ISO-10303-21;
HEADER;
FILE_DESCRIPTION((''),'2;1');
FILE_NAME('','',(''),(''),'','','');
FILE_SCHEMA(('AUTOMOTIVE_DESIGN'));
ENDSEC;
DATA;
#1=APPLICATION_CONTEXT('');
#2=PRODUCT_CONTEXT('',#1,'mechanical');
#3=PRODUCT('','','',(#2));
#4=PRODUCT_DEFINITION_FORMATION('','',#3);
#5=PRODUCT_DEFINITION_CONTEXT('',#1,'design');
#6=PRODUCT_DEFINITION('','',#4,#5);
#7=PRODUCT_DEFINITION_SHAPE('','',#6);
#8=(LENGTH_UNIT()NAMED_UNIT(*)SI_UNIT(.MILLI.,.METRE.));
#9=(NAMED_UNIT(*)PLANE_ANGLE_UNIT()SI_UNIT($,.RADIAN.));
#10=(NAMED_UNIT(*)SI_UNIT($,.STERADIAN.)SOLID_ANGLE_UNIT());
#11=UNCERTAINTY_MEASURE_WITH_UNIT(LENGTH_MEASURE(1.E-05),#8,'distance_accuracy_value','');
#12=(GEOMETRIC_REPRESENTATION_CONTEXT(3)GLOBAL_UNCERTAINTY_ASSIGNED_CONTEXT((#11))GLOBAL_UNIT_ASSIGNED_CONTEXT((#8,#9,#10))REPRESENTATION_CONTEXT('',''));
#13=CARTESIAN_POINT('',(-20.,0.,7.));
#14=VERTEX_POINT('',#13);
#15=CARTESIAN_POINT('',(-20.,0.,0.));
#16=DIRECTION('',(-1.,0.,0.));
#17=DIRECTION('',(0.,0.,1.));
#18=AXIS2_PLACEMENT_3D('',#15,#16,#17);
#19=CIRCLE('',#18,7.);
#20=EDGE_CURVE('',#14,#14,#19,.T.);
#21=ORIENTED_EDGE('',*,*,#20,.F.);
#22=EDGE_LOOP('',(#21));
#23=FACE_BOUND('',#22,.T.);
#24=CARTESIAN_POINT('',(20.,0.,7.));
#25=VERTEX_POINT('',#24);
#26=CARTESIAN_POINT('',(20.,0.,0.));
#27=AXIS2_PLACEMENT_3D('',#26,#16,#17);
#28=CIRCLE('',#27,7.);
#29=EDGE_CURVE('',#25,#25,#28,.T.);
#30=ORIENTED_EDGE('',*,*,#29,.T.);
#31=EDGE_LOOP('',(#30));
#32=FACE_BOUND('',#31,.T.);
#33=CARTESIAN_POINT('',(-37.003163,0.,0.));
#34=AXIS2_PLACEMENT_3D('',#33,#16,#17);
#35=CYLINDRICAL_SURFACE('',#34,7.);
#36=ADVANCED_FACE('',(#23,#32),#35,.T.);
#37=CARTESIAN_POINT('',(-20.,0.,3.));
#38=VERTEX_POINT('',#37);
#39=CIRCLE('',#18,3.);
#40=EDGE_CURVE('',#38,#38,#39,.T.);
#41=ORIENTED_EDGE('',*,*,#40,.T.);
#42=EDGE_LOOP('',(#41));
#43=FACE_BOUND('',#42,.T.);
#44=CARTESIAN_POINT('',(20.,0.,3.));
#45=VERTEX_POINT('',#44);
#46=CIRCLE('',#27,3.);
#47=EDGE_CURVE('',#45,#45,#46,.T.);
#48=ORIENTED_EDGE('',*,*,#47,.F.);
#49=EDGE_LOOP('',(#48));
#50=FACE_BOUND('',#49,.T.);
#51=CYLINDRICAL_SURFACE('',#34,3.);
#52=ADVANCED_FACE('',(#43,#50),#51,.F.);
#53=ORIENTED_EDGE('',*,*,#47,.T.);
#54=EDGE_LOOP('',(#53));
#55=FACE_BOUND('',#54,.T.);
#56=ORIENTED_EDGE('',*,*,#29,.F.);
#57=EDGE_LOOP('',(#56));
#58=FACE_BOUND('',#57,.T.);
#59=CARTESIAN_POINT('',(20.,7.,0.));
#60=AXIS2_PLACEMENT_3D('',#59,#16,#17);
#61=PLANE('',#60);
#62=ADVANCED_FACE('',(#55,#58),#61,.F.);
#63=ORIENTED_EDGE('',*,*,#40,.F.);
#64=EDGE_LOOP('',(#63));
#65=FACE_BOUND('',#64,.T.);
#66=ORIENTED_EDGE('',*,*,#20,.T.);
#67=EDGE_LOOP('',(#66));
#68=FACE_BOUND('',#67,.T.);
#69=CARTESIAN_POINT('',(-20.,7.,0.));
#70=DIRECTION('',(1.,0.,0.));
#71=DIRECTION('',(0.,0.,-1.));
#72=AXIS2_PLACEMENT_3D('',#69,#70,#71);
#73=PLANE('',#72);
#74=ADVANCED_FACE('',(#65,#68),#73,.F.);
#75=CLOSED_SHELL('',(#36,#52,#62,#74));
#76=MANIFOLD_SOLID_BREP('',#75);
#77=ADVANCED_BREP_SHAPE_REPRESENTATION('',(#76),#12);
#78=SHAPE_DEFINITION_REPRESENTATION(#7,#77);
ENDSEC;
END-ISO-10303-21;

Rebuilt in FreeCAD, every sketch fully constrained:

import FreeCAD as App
import Part
import Sketcher

V = App.Vector

doc = App.newDocument("Part")
body = doc.addObject("PartDesign::Body", "Body")

sketch1 = doc.addObject("Sketcher::SketchObject", "Sketch")
body.addObject(sketch1)
sketch1.AttachmentSupport = (doc.XY_Plane, [""])
sketch1.MapMode = "FlatFace"
sketch1.addGeometry(Part.LineSegment(V(-20, 7, 0), V(-20, 3, 0)), False)
sketch1.addGeometry(Part.LineSegment(V(-20, 3, 0), V(20, 3, 0)), False)
sketch1.addGeometry(Part.LineSegment(V(20, 3, 0), V(20, 7, 0)), False)
sketch1.addGeometry(Part.LineSegment(V(20, 7, 0), V(-20, 7, 0)), False)
sketch1.addConstraint(Sketcher.Constraint("Coincident", 0, 2, 1, 1))
sketch1.addConstraint(Sketcher.Constraint("Coincident", 1, 2, 2, 1))
sketch1.addConstraint(Sketcher.Constraint("Coincident", 2, 2, 3, 1))
sketch1.addConstraint(Sketcher.Constraint("Coincident", 3, 2, 0, 1))
sketch1.addConstraint(Sketcher.Constraint("Vertical", 0))
sketch1.addConstraint(Sketcher.Constraint("Horizontal", 1))
sketch1.addConstraint(Sketcher.Constraint("Vertical", 2))
sketch1.addConstraint(Sketcher.Constraint("Horizontal", 3))
sketch1.addConstraint(Sketcher.Constraint("DistanceX", 1, 1, 1, 2, 40.0))
sketch1.addConstraint(Sketcher.Constraint("DistanceY", 0, 2, 0, 1, 4.0))
sketch1.addConstraint(Sketcher.Constraint("DistanceX", 0, 2, -1, 1, 20.0))
sketch1.addConstraint(Sketcher.Constraint("DistanceY", -1, 1, 0, 2, 3.0))
revolution = doc.addObject("PartDesign::Revolution", "Revolution")
body.addObject(revolution)
revolution.Profile = sketch1
revolution.ReferenceAxis = (sketch1, ["H_Axis"])
revolution.Angle = 360

doc.recompute()
